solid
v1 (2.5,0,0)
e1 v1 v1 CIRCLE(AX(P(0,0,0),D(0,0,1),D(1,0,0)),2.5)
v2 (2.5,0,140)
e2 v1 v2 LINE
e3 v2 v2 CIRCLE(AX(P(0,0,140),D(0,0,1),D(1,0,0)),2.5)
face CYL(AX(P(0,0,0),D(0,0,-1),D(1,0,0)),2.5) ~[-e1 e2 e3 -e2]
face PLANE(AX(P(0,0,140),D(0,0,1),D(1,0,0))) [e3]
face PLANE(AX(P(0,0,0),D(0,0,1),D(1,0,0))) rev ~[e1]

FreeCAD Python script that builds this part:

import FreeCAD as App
import Part
import Sketcher

V = App.Vector
Q = App.Units.Quantity

doc = App.newDocument("Part")
body = doc.addObject("PartDesign::Body", "Body")

# Sketch on XY plane
sketch1 = body.newObject("Sketcher::SketchObject", "Sketch")
sketch1.AttachmentSupport = (doc.getObject("XY_Plane"), [""])
sketch1.MapMode = "FlatFace"
sketch1.addGeometry(Part.Circle(V(0, 0, 0), V(0, 0, 1), 2.5), False)
sketch1.addConstraint([
    Sketcher.Constraint("Coincident", 0, 3, -1, 1),
    Sketcher.Constraint("Diameter", 0, Q("5 mm")),
])
pad1 = body.newObject("PartDesign::Pad", "Pad")
pad1.Profile = sketch1
pad1.Length = 140

doc.recompute()
